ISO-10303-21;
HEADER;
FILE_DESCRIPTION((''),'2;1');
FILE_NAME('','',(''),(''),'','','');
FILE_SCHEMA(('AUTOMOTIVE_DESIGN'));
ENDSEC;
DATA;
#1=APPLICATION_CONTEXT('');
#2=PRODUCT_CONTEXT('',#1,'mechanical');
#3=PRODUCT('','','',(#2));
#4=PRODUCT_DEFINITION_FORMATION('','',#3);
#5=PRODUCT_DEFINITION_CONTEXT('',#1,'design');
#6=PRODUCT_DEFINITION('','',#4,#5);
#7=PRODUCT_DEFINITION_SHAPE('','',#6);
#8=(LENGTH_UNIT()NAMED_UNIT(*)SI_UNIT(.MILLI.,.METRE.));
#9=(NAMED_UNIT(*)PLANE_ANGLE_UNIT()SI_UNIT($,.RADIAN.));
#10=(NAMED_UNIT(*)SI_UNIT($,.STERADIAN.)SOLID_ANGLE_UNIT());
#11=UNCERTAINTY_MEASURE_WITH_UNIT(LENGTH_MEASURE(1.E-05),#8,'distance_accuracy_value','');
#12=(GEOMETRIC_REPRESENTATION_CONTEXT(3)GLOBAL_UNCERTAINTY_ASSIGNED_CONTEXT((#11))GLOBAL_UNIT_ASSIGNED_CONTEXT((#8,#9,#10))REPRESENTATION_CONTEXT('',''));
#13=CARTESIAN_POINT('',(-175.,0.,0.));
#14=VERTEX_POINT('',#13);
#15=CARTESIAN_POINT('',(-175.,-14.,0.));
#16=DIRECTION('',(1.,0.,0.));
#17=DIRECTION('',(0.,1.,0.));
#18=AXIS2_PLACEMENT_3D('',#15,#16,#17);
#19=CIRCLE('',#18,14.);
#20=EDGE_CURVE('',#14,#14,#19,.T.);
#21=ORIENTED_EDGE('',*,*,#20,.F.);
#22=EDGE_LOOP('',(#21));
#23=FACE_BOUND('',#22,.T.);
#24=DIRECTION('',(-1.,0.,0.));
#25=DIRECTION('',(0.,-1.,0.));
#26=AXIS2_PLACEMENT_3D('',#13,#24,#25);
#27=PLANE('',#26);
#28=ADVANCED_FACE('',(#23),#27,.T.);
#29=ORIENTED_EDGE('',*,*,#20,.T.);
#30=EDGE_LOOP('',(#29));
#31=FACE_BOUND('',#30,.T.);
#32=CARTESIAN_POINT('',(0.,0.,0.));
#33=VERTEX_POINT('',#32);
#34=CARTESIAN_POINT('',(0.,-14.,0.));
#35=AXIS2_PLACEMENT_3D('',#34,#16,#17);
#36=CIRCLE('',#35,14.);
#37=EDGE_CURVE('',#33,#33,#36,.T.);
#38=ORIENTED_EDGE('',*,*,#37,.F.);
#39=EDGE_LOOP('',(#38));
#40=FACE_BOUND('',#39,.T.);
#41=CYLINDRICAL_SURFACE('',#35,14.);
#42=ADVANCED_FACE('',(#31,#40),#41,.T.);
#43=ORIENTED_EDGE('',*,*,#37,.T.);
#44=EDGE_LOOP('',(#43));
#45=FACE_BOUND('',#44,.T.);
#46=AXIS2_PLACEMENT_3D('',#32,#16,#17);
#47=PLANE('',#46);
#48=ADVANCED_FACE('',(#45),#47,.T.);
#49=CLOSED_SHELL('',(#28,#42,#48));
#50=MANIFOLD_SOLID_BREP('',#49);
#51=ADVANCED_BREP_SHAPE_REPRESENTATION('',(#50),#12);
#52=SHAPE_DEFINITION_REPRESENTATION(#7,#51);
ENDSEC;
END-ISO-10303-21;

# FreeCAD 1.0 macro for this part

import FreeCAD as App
import Part
import Sketcher

V = App.Vector
Q = App.Units.Quantity

doc = App.newDocument("Part")
params = doc.addObject("Spreadsheet::Sheet", "Params")
for row, (alias, value) in enumerate([
    ("sketch1_width", "175 mm"),
    ("sketch1_height", "14 mm"),
    ("revolution_angle", "360 deg"),
], start=1):
    params.set(f"A{row}", alias)
    params.set(f"B{row}", "=" + value)
    params.setAlias(f"B{row}", alias)

body = doc.addObject("PartDesign::Body", "Body")

# Sketch on XY plane
sketch1 = body.newObject("Sketcher::SketchObject", "Sketch")
sketch1.AttachmentSupport = (doc.getObject("XY_Plane"), [""])
sketch1.MapMode = "FlatFace"
sketch1.addGeometry(Part.LineSegment(V(-175, 0, 0), V(-175, -14, 0)), False)
sketch1.addGeometry(Part.LineSegment(V(-175, -14, 0), V(0, -14, 0)), False)
sketch1.addGeometry(Part.LineSegment(V(0, -14, 0), V(0, 0, 0)), False)
sketch1.addGeometry(Part.LineSegment(V(0, 0, 0), V(-175, 0, 0)), False)
sketch1.addGeometry(Part.LineSegment(V(0, -14, 0), V(-175, -14, 0)), True)  # axis
sketch1.addConstraint(Sketcher.Constraint("Coincident", 0, 2, 1, 1))
sketch1.addConstraint(Sketcher.Constraint("Coincident", 1, 2, 2, 1))
sketch1.addConstraint(Sketcher.Constraint("Coincident", 2, 2, 3, 1))
sketch1.addConstraint(Sketcher.Constraint("Coincident", 3, 2, 0, 1))
sketch1.addConstraint(Sketcher.Constraint("Vertical", 0))
sketch1.addConstraint(Sketcher.Constraint("Horizontal", 1))
sketch1.addConstraint(Sketcher.Constraint("Vertical", 2))
sketch1.addConstraint(Sketcher.Constraint("Horizontal", 3))
sketch1.addConstraint(Sketcher.Constraint("Horizontal", 4))
sketch1.addConstraint(Sketcher.Constraint("Coincident", 2, 2, -1, 1))
sketch1.addConstraint(Sketcher.Constraint("Coincident", 4, 1, 1, 2))
sketch1.addConstraint(Sketcher.Constraint("Vertical", 3, 2, 4, 2))
sketch1.addConstraint(Sketcher.Constraint("DistanceX", 1, 1, 1, 2, Q("175 mm")))
sketch1.addConstraint(Sketcher.Constraint("DistanceY", 0, 2, 0, 1, Q("14 mm")))
sketch1.setExpression("Constraints[12]", "Params.sketch1_width")
sketch1.setExpression("Constraints[13]", "Params.sketch1_height")
revolution = body.newObject("PartDesign::Revolution", "Revolution")
revolution.Profile = sketch1
revolution.ReferenceAxis = (sketch1, ["Axis0"])
revolution.setExpression("Angle", "Params.revolution_angle")

doc.recompute()
